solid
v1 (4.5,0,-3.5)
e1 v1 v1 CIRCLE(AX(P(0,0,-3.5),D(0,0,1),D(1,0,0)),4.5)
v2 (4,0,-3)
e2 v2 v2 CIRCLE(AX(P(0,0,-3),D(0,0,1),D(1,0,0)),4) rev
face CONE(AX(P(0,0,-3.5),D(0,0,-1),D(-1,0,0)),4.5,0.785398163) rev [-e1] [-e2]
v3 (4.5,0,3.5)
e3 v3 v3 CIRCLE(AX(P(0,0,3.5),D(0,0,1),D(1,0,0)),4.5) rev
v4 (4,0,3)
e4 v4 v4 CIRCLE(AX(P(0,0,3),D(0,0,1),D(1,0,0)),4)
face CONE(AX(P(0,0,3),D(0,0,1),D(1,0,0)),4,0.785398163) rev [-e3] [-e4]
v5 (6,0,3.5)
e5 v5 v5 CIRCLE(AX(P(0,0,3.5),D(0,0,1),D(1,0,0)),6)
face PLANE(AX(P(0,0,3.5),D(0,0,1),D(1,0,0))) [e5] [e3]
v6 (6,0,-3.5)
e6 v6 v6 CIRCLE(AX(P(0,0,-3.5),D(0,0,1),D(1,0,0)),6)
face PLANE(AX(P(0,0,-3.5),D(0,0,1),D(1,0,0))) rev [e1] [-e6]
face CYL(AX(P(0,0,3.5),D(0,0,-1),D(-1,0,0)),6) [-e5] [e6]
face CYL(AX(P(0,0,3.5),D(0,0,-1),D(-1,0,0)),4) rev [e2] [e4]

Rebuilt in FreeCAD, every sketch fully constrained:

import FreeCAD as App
import Part
import Sketcher
from FreeCAD import Vector
Q = App.Units.Quantity


def edges_at(feature, points):
    """Names of the edges that pass closest to the given points."""
    edges = feature.Shape.Edges
    near = lambda p: min(range(len(edges)), key=lambda i: edges[i].distToShape(Part.Vertex(*p))[0])
    return sorted({f"Edge{near(p) + 1}" for p in points})

doc = App.newDocument("Part")
body = doc.addObject("PartDesign::Body", "Body")

# Sketch on XY plane
sketch1 = body.newObject("Sketcher::SketchObject", "Sketch")
sketch1.AttachmentSupport = (doc.getObject("XY_Plane"), [""])
sketch1.MapMode = "FlatFace"
sketch1.addGeometry([
    Part.Circle(Vector(0, 0, 0), Vector(0, 0, 1), 6),
    Part.Circle(Vector(0, 0, 0), Vector(0, 0, 1), 4),
], False)
sketch1.addConstraint([
    Sketcher.Constraint("Coincident", 0, 3, -1, 1),
    Sketcher.Constraint("Coincident", 1, 3, -1, 1),
    Sketcher.Constraint("Diameter", 0, Q("12 mm")),
    Sketcher.Constraint("Diameter", 1, Q("8 mm")),
])
pad1 = body.newObject("PartDesign::Pad", "Pad")
pad1.Profile = sketch1
pad1.Length = 7
pad1.Midplane = True
doc.recompute()

chamfer = body.newObject("PartDesign::Chamfer", "Chamfer")
chamfer.Base = (pad1, edges_at(pad1, [(-4, 0, -3.5), (-4, 0, 3.5)]))
chamfer.Size = 0.5

doc.recompute()
